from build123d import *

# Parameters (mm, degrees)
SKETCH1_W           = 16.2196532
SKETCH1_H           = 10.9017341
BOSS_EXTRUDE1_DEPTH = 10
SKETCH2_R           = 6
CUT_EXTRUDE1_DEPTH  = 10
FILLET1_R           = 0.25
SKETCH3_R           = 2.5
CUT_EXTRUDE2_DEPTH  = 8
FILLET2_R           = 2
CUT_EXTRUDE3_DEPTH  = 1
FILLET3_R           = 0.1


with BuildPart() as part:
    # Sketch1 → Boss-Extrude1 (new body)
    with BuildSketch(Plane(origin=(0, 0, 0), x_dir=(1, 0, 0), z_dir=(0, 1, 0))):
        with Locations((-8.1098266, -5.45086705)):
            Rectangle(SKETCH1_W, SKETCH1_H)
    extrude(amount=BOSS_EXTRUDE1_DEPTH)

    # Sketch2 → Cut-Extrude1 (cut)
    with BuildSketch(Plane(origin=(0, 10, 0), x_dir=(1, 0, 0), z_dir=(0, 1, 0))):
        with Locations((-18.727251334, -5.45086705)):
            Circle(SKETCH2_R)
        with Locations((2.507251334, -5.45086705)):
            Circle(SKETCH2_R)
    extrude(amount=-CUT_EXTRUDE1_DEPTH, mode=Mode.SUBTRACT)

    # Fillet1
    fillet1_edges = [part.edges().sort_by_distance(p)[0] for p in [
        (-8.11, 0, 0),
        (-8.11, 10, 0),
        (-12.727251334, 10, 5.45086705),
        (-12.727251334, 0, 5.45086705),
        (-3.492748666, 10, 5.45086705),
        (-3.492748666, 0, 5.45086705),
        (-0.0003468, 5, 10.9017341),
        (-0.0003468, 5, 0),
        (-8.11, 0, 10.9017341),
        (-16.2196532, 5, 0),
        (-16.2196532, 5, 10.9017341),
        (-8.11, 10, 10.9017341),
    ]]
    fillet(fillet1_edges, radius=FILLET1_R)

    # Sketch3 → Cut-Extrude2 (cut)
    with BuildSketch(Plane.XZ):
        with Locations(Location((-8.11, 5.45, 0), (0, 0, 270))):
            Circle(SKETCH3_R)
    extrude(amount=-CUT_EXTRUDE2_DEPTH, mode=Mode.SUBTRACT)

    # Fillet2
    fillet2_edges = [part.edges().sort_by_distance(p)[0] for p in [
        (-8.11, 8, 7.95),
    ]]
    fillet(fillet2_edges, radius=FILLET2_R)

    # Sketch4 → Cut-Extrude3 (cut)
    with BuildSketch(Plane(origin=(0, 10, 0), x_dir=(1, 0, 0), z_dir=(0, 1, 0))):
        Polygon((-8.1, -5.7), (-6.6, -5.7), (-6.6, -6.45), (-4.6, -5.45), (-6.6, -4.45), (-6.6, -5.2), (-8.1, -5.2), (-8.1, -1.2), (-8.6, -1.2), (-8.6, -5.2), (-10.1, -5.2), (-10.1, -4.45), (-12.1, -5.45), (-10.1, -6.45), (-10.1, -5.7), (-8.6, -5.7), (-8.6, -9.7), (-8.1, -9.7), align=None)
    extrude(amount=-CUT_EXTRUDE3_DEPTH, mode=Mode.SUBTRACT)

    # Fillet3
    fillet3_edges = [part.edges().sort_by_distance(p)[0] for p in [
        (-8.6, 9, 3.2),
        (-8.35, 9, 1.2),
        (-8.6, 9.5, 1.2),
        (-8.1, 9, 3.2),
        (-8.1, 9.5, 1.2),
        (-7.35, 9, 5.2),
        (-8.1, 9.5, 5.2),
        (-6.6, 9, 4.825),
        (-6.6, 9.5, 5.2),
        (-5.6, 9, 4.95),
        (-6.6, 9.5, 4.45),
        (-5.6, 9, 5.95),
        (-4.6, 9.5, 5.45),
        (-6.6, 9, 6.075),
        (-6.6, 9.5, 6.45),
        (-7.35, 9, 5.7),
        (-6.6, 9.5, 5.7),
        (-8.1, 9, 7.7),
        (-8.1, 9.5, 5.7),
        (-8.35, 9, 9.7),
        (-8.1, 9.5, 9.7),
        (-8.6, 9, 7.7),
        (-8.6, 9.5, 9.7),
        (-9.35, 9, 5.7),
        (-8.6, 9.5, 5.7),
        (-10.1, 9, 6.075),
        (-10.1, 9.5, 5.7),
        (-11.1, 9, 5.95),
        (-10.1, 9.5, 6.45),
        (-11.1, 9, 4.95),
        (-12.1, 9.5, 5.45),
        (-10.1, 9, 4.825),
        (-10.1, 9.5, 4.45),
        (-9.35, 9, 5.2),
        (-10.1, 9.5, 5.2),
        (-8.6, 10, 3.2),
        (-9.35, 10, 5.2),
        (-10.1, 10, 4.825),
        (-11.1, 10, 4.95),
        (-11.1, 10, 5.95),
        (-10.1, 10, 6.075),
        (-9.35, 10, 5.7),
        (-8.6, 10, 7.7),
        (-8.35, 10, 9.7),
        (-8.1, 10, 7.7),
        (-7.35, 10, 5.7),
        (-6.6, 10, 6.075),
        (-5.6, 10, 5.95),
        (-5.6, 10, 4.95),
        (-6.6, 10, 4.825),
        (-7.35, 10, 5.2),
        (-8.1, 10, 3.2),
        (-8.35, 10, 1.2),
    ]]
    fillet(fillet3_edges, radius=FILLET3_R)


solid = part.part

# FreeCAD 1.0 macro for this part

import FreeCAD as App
import Part
import Sketcher

V = App.Vector


def edges_at(feature, points):
    """Names of the edges that pass closest to the given points."""
    edges = feature.Shape.Edges
    near = lambda p: min(range(len(edges)), key=lambda i: edges[i].distToShape(Part.Vertex(*p))[0])
    return sorted({f"Edge{near(p) + 1}" for p in points})


def add_polygon(sketch, points):
    """Adds a closed chain of lines whose ends are joined by coincident constraints."""
    first, n = sketch.GeometryCount, len(points)
    for a, b in zip(points, points[1:] + points[:1]):
        sketch.addGeometry(Part.LineSegment(App.Vector(*a, 0), App.Vector(*b, 0)), False)
    for i in range(n):
        sketch.addConstraint(Sketcher.Constraint("Coincident", first + i, 2, first + (i + 1) % n, 1))

doc = App.newDocument("Part")
params = doc.addObject("Spreadsheet::Sheet", "Params")
for row, (alias, value) in enumerate([
    ("pad1_length", "10 mm"),
    ("sketch2_diameter", "12 mm"),
    ("pocket1_length", "10 mm"),
    ("fillet_radius", "0.25 mm"),
    ("sketch3_diameter", "5 mm"),
    ("pocket2_length", "8 mm"),
    ("fillet2_radius", "2 mm"),
    ("sketch4_height", "4 mm"),
    ("sketch4_width", "1.5 mm"),
    ("sketch4_width2", "0.5 mm"),
    ("sketch4_height2", "0.75 mm"),
    ("pocket3_length", "1 mm"),
    ("fillet3_radius", "0.1 mm"),
], start=1):
    params.set(f"A{row}", alias)
    params.set(f"B{row}", "=" + value)
    params.setAlias(f"B{row}", alias)

body = doc.addObject("PartDesign::Body", "Body")

# Sketch on XZ plane
sketch1 = doc.addObject("Sketcher::SketchObject", "Sketch")
body.addObject(sketch1)
sketch1.AttachmentSupport = (doc.XZ_Plane, [""])
sketch1.MapMode = "FlatFace"
add_polygon(sketch1, [(-16.219653, 0), (-16.219653, 10.901734), (0, 10.901734), (0, 0)])  # lines 0-3
sketch1.addConstraint([
    Sketcher.Constraint("Vertical", 0),
    Sketcher.Constraint("Horizontal", 1),
    Sketcher.Constraint("Vertical", 2),
    Sketcher.Constraint("Horizontal", 3),
    Sketcher.Constraint("Coincident", 2, 2, -1, 1),
    Sketcher.Constraint("DistanceX", 1, 1, 1, 2, 16.219653),
    Sketcher.Constraint("DistanceY", 0, 1, 0, 2, 10.901734),
])
pad1 = doc.addObject("PartDesign::Pad", "Pad")
body.addObject(pad1)
pad1.Profile = sketch1
pad1.setExpression("Length", "Params.pad1_length")
pad1.Reversed = True

# Sketch on XZ plane
sketch2 = doc.addObject("Sketcher::SketchObject", "Sketch001")
body.addObject(sketch2)
sketch2.AttachmentSupport = (doc.XZ_Plane, [""])
sketch2.MapMode = "FlatFace"
sketch2.AttachmentOffset = App.Placement(V(0, 0, -10), App.Rotation())
sketch2.addGeometry([
    Part.Circle(V(-18.727251, 5.450867, 0), V(0, 0, 1), 6),
    Part.Circle(V(2.507251, 5.450867, 0), V(0, 0, 1), 6),
], False)
sketch2.addConstraint([
    Sketcher.Constraint("Equal", 0, 1),
    Sketcher.Constraint("Horizontal", 0, 3, 1, 3),
    Sketcher.Constraint("Diameter", 0, 12.0),
    Sketcher.Constraint("DistanceX", 0, 3, -1, 1, 18.727251),
    Sketcher.Constraint("DistanceX", -1, 1, 1, 3, 2.507251),
    Sketcher.Constraint("DistanceY", -1, 1, 0, 3, 5.450867),
])
sketch2.setExpression("Constraints[2]", "Params.sketch2_diameter")
pocket1 = doc.addObject("PartDesign::Pocket", "Pocket")
body.addObject(pocket1)
pocket1.Profile = sketch2
pocket1.setExpression("Length", "Params.pocket1_length")
pocket1.Reversed = True
doc.recompute()

fillet = doc.addObject("PartDesign::Fillet", "Fillet")
body.addObject(fillet)
fillet.Base = (pocket1, ["Edge1"])
fillet.UseAllEdges = True
fillet.setExpression("Radius", "Params.fillet_radius")

# Sketch on XZ plane
sketch3 = doc.addObject("Sketcher::SketchObject", "Sketch002")
body.addObject(sketch3)
sketch3.AttachmentSupport = (doc.XZ_Plane, [""])
sketch3.MapMode = "FlatFace"
sketch3.addGeometry(Part.Circle(V(-8.11, 5.45, 0), V(0, 0, 1), 2.5), False)
sketch3.addConstraint([
    Sketcher.Constraint("Diameter", 0, 5.0),
    Sketcher.Constraint("DistanceX", 0, 3, -1, 1, 8.11),
    Sketcher.Constraint("DistanceY", -1, 1, 0, 3, 5.45),
])
sketch3.setExpression("Constraints[0]", "Params.sketch3_diameter")
pocket2 = doc.addObject("PartDesign::Pocket", "Pocket001")
body.addObject(pocket2)
pocket2.Profile = sketch3
pocket2.setExpression("Length", "Params.pocket2_length")
doc.recompute()

fillet2 = doc.addObject("PartDesign::Fillet", "Fillet001")
body.addObject(fillet2)
fillet2.Base = (pocket2, edges_at(pocket2, [(-8.11, 8, 7.95)]))
fillet2.setExpression("Radius", "Params.fillet2_radius")

# Sketch on XZ plane
sketch4 = doc.addObject("Sketcher::SketchObject", "Sketch003")
body.addObject(sketch4)
sketch4.AttachmentSupport = (doc.XZ_Plane, [""])
sketch4.MapMode = "FlatFace"
sketch4.AttachmentOffset = App.Placement(V(0, 0, -10), App.Rotation())
add_polygon(sketch4, [(-8.1, 5.7), (-6.6, 5.7), (-6.6, 6.45), (-4.6, 5.45), (-6.6, 4.45), (-6.6, 5.2), (-8.1, 5.2), (-8.1, 1.2), (-8.6, 1.2), (-8.6, 5.2), (-10.1, 5.2), (-10.1, 4.45), (-12.1, 5.45), (-10.1, 6.45), (-10.1, 5.7), (-8.6, 5.7), (-8.6, 9.7), (-8.1, 9.7)])  # lines 0-17
sketch4.addConstraint([
    Sketcher.Constraint("Horizontal", 0),
    Sketcher.Constraint("Vertical", 1),
    Sketcher.Constraint("Vertical", 4),
    Sketcher.Constraint("Horizontal", 5),
    Sketcher.Constraint("Vertical", 6),
    Sketcher.Constraint("Horizontal", 7),
    Sketcher.Constraint("Vertical", 8),
    Sketcher.Constraint("Horizontal", 9),
    Sketcher.Constraint("Vertical", 10),
    Sketcher.Constraint("Vertical", 13),
    Sketcher.Constraint("Horizontal", 14),
    Sketcher.Constraint("Vertical", 15),
    Sketcher.Constraint("Horizontal", 16),
    Sketcher.Constraint("Vertical", 17),
    Sketcher.Constraint("Parallel", 2, 11),
    Sketcher.Constraint("Parallel", 3, 12),
    Sketcher.Constraint("Horizontal", 5, 2, 8, 2),
    Sketcher.Constraint("Horizontal", 3, 2, 10, 2),
    Sketcher.Constraint("Horizontal", 2, 2, 11, 2),
    Sketcher.Constraint("Horizontal", 1, 2, 12, 2),
    Sketcher.Constraint("Horizontal", 0, 2, 13, 2),
    Sketcher.Constraint("Vertical", 1, 2, 3, 2),
    Sketcher.Constraint("Vertical", 10, 2, 12, 2),
    Sketcher.Constraint("Vertical", 8, 2, 14, 2),
    Sketcher.Constraint("Vertical", 6, 2, 16, 2),
    Sketcher.Constraint("Equal", 5, 9),
    Sketcher.Constraint("Equal", 1, 4),
    Sketcher.Constraint("Equal", 8, 15),
    Sketcher.Constraint("DistanceY", 6, 2, 6, 1, 4.0),
    Sketcher.Constraint("DistanceX", 0, 1, 0, 2, 1.5),
    Sketcher.Constraint("DistanceX", 7, 2, 7, 1, 0.5),
    Sketcher.Constraint("DistanceX", 0, 2, 2, 2, 2.0),
    Sketcher.Constraint("DistanceY", 2, 2, 1, 2, 1.0),
    Sketcher.Constraint("DistanceY", 1, 1, 1, 2, 0.75),
    Sketcher.Constraint("DistanceX", 0, 2, -1, 1, 6.6),
    Sketcher.Constraint("DistanceY", -1, 1, 0, 2, 5.7),
])
sketch4.setExpression("Constraints[46]", "Params.sketch4_height")
sketch4.setExpression("Constraints[47]", "Params.sketch4_width")
sketch4.setExpression("Constraints[48]", "Params.sketch4_width2")
sketch4.setExpression("Constraints[51]", "Params.sketch4_height2")
pocket3 = doc.addObject("PartDesign::Pocket", "Pocket002")
body.addObject(pocket3)
pocket3.Profile = sketch4
pocket3.setExpression("Length", "Params.pocket3_length")
pocket3.Reversed = True
doc.recompute()

fillet3 = doc.addObject("PartDesign::Fillet", "Fillet002")
body.addObject(fillet3)
fillet3.Base = (pocket3, edges_at(pocket3, [
    (-8.6, 9, 3.2),
    (-8.35, 9, 1.2),
    (-8.6, 9.5, 1.2),
    (-8.1, 9, 3.2),
    (-8.1, 9.5, 1.2),
    (-7.35, 9, 5.2),
    (-8.1, 9.5, 5.2),
    (-6.6, 9, 4.825),
    (-6.6, 9.5, 5.2),
    (-5.6, 9, 4.95),
    (-6.6, 9.5, 4.45),
    (-5.6, 9, 5.95),
    (-4.6, 9.5, 5.45),
    (-6.6, 9, 6.075),
    (-6.6, 9.5, 6.45),
    (-7.35, 9, 5.7),
    (-6.6, 9.5, 5.7),
    (-8.1, 9, 7.7),
    (-8.1, 9.5, 5.7),
    (-8.35, 9, 9.7),
    (-8.1, 9.5, 9.7),
    (-8.6, 9, 7.7),
    (-8.6, 9.5, 9.7),
    (-9.35, 9, 5.7),
    (-8.6, 9.5, 5.7),
    (-10.1, 9, 6.075),
    (-10.1, 9.5, 5.7),
    (-11.1, 9, 5.95),
    (-10.1, 9.5, 6.45),
    (-11.1, 9, 4.95),
    (-12.1, 9.5, 5.45),
    (-10.1, 9, 4.825),
    (-10.1, 9.5, 4.45),
    (-9.35, 9, 5.2),
    (-10.1, 9.5, 5.2),
    (-8.6, 10, 3.2),
    (-9.35, 10, 5.2),
    (-10.1, 10, 4.825),
    (-11.1, 10, 4.95),
    (-11.1, 10, 5.95),
    (-10.1, 10, 6.075),
    (-9.35, 10, 5.7),
    (-8.6, 10, 7.7),
    (-8.35, 10, 9.7),
    (-8.1, 10, 7.7),
    (-7.35, 10, 5.7),
    (-6.6, 10, 6.075),
    (-5.6, 10, 5.95),
    (-5.6, 10, 4.95),
    (-6.6, 10, 4.825),
    (-7.35, 10, 5.2),
    (-8.1, 10, 3.2),
    (-8.35, 10, 1.2),
]))
fillet3.setExpression("Radius", "Params.fillet3_radius")

doc.recompute()
